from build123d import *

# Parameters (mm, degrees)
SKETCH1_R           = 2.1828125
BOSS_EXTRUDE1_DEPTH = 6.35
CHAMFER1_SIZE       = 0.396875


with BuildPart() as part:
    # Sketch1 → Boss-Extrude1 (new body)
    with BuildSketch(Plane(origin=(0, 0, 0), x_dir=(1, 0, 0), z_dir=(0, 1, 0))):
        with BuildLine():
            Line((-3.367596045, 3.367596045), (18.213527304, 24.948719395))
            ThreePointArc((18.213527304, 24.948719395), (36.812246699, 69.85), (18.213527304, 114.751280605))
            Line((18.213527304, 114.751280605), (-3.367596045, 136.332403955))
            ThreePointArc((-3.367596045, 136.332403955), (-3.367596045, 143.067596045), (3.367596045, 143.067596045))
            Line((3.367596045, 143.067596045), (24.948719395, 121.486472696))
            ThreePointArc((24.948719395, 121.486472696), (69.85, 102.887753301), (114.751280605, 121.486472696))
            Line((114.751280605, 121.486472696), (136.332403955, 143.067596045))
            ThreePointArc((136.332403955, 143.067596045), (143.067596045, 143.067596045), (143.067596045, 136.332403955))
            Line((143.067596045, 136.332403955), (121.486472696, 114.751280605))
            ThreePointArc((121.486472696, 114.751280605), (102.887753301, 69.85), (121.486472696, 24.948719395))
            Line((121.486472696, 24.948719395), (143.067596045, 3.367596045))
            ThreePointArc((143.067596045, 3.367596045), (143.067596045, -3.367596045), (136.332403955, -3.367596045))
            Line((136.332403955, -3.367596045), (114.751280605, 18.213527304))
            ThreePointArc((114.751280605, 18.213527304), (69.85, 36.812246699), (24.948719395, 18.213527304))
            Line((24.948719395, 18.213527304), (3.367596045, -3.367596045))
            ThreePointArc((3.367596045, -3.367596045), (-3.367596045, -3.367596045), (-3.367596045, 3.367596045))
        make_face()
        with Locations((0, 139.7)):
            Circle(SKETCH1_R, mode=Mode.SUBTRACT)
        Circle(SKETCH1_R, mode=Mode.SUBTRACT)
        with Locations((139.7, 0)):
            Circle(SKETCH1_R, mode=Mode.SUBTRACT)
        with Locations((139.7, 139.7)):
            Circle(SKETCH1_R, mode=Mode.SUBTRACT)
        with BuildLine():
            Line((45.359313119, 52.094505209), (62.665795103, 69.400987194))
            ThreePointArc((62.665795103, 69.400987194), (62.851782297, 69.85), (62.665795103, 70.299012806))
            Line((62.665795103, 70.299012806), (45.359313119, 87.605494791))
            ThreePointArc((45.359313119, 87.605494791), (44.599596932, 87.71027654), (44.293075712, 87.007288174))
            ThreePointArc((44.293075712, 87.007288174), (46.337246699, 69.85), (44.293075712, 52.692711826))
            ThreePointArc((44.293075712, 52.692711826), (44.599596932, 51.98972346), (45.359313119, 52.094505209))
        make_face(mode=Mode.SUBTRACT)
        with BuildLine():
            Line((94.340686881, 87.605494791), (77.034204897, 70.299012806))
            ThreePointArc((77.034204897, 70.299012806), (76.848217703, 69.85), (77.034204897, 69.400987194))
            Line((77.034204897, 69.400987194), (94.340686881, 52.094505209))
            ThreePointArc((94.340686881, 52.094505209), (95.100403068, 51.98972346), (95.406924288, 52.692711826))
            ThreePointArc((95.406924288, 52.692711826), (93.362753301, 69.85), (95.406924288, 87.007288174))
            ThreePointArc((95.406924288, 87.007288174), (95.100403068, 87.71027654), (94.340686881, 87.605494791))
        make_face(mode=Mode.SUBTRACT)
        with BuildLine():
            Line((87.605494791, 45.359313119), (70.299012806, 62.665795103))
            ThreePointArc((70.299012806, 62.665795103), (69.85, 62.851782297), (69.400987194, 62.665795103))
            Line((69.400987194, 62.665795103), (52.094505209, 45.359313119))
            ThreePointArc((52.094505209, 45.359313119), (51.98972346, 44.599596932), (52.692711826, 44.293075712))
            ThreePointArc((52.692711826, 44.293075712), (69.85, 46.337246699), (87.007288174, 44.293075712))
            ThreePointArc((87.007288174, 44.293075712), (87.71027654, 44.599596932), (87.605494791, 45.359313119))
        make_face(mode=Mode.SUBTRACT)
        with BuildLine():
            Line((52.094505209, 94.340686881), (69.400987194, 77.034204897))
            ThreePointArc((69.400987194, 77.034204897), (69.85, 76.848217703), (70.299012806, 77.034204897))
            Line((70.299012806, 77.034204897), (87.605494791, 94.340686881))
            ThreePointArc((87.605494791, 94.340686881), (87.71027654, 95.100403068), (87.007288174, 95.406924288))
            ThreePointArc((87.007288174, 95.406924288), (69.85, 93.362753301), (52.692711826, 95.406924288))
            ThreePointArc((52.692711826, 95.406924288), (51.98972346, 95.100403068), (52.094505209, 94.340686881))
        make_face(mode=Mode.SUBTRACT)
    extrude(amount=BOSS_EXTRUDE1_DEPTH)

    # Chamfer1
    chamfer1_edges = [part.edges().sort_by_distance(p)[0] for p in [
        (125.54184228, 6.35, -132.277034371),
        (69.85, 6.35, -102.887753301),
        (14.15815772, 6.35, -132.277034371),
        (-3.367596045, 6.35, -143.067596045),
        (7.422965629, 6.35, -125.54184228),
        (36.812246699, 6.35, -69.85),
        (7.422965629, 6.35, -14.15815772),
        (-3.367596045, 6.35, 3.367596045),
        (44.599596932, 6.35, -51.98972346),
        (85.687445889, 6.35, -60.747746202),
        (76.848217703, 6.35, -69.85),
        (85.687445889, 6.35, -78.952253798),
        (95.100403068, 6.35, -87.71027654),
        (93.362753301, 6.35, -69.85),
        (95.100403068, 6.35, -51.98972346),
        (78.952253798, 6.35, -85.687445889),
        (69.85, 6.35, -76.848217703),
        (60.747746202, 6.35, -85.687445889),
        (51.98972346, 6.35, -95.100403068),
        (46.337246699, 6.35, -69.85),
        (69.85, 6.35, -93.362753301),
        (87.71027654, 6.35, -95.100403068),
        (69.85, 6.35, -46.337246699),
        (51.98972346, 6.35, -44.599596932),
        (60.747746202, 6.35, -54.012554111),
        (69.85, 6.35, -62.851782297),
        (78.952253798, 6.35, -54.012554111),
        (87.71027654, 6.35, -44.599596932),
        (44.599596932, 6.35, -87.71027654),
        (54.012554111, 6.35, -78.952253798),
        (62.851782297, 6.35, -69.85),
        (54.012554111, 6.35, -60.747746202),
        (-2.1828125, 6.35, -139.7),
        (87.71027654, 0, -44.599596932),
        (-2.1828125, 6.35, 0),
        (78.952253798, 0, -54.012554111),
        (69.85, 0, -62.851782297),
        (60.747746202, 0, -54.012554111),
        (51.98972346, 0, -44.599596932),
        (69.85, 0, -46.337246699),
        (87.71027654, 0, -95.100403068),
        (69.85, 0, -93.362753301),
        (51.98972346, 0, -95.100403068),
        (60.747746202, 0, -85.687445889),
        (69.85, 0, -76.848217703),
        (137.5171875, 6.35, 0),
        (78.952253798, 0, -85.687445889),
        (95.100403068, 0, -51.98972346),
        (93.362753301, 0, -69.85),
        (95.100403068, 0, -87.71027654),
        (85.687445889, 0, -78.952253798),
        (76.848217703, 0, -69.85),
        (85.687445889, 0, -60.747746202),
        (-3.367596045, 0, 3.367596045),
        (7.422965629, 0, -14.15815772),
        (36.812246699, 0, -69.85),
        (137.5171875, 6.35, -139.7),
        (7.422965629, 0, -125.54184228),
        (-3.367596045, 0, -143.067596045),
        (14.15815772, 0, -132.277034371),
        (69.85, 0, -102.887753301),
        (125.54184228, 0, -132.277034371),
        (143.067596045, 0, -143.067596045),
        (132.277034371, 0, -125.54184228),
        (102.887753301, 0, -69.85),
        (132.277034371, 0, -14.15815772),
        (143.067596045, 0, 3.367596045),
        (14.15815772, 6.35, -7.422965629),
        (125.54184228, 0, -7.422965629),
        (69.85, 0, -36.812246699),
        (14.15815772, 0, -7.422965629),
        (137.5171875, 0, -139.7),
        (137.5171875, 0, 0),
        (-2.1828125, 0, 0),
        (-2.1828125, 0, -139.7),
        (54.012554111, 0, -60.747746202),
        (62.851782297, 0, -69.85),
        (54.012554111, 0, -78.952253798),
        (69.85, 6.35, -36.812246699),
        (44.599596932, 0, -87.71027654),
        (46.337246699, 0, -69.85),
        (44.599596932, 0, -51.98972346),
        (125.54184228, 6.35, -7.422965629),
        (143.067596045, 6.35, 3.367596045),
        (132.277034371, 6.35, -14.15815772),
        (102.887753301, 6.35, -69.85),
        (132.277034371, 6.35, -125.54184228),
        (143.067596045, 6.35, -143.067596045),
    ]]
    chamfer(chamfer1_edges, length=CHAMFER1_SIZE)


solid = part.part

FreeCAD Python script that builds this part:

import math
import FreeCAD as App
import Part
import Sketcher
Q = App.Units.Quantity


def edges_at(feature, points):
    """Names of the edges that pass closest to the given points."""
    edges = feature.Shape.Edges
    near = lambda p: min(range(len(edges)), key=lambda i: edges[i].distToShape(Part.Vertex(*p))[0])
    return sorted({f"Edge{near(p) + 1}" for p in points})

doc = App.newDocument("Part")
body = doc.addObject("PartDesign::Body", "Body")

# Sketch on XZ plane
sketch1 = body.newObject("Sketcher::SketchObject", "Sketch")
sketch1.AttachmentSupport = (doc.getObject("XZ_Plane"), [""])
sketch1.MapMode = "FlatFace"
sketch1.addGeometry(Part.LineSegment(App.Vector(18.213527, -24.948719, 0), App.Vector(-3.367596, -3.367596, 0)), False)
sketch1.addGeometry(Part.ArcOfCircle(Part.Circle(App.Vector(0, 0, 0), App.Vector(0, 0, 1), 4.7625), math.radians(45), math.radians(225)), False)
sketch1.addGeometry(Part.LineSegment(App.Vector(3.367596, 3.367596, 0), App.Vector(24.948719, -18.213527, 0)), False)
sketch1.addGeometry(Part.ArcOfCircle(Part.Circle(App.Vector(69.85, 26.687753, 0), App.Vector(0, 0, 1), 63.5), math.radians(-135), math.radians(-45)), False)
sketch1.addGeometry(Part.LineSegment(App.Vector(114.751281, -18.213527, 0), App.Vector(136.332404, 3.367596, 0)), False)
sketch1.addGeometry(Part.ArcOfCircle(Part.Circle(App.Vector(139.7, 0, 0), App.Vector(0, 0, 1), 4.7625), math.radians(-45), math.radians(135)), False)
sketch1.addGeometry(Part.LineSegment(App.Vector(143.067596, -3.367596, 0), App.Vector(121.486473, -24.948719, 0)), False)
sketch1.addGeometry(Part.ArcOfCircle(Part.Circle(App.Vector(166.387753, -69.85, 0), App.Vector(0, 0, 1), 63.5), math.radians(135), math.radians(225)), False)
sketch1.addGeometry(Part.LineSegment(App.Vector(121.486473, -114.751281, 0), App.Vector(143.067596, -136.332404, 0)), False)
sketch1.addGeometry(Part.ArcOfCircle(Part.Circle(App.Vector(139.7, -139.7, 0), App.Vector(0, 0, 1), 4.7625), math.radians(-135), math.radians(45)), False)
sketch1.addGeometry(Part.LineSegment(App.Vector(136.332404, -143.067596, 0), App.Vector(114.751281, -121.486473, 0)), False)
sketch1.addGeometry(Part.ArcOfCircle(Part.Circle(App.Vector(69.85, -166.387753, 0), App.Vector(0, 0, 1), 63.5), math.radians(45), math.radians(135)), False)
sketch1.addGeometry(Part.LineSegment(App.Vector(24.948719, -121.486473, 0), App.Vector(3.367596, -143.067596, 0)), False)
sketch1.addGeometry(Part.ArcOfCircle(Part.Circle(App.Vector(0, -139.7, 0), App.Vector(0, 0, 1), 4.7625), math.radians(135), math.radians(315)), False)
sketch1.addGeometry(Part.LineSegment(App.Vector(-3.367596, -136.332404, 0), App.Vector(18.213527, -114.751281, 0)), False)
sketch1.addGeometry(Part.ArcOfCircle(Part.Circle(App.Vector(-26.687753, -69.85, 0), App.Vector(0, 0, 1), 63.5), math.radians(-45), math.radians(45)), False)
sketch1.addGeometry(Part.Circle(App.Vector(139.7, 0, 0), App.Vector(0, 0, 1), 2.182812), False)
sketch1.addGeometry(Part.Circle(App.Vector(0, 0, 0), App.Vector(0, 0, 1), 2.182812), False)
sketch1.addGeometry(Part.ArcOfCircle(Part.Circle(App.Vector(87.156482, -44.9103, 0), App.Vector(0, 0, 1), 0.635), math.radians(-45), math.radians(103.588727)), False)
sketch1.addGeometry(Part.ArcOfCircle(Part.Circle(App.Vector(69.85, 26.687753, 0), App.Vector(0, 0, 1), 73.025), math.radians(-103.588727), math.radians(-76.411273)), False)
sketch1.addGeometry(Part.ArcOfCircle(Part.Circle(App.Vector(52.543518, -44.9103, 0), App.Vector(0, 0, 1), 0.635), math.radians(76.411273), math.radians(225)), False)
sketch1.addGeometry(Part.LineSegment(App.Vector(52.094505, -45.359313, 0), App.Vector(69.400987, -62.665795, 0)), False)
sketch1.addGeometry(Part.ArcOfCircle(Part.Circle(App.Vector(69.85, -62.216782, 0), App.Vector(0, 0, 1), 0.635), math.radians(-135), math.radians(-45)), False)
sketch1.addGeometry(Part.LineSegment(App.Vector(70.299013, -62.665795, 0), App.Vector(87.605495, -45.359313, 0)), False)
sketch1.addGeometry(Part.ArcOfCircle(Part.Circle(App.Vector(94.7897, -87.156482, 0), App.Vector(0, 0, 1), 0.635), math.radians(-135), math.radians(13.588727)), False)
sketch1.addGeometry(Part.ArcOfCircle(Part.Circle(App.Vector(166.387753, -69.85, 0), App.Vector(0, 0, 1), 73.025), math.radians(166.411273), math.radians(193.588727)), False)
sketch1.addGeometry(Part.ArcOfCircle(Part.Circle(App.Vector(94.7897, -52.543518, 0), App.Vector(0, 0, 1), 0.635), math.radians(-13.588727), math.radians(135)), False)
sketch1.addGeometry(Part.LineSegment(App.Vector(94.340687, -52.094505, 0), App.Vector(77.034205, -69.400987, 0)), False)
sketch1.addGeometry(Part.ArcOfCircle(Part.Circle(App.Vector(77.483218, -69.85, 0), App.Vector(0, 0, 1), 0.635), math.radians(135), math.radians(225)), False)
sketch1.addGeometry(Part.LineSegment(App.Vector(77.034205, -70.299013, 0), App.Vector(94.340687, -87.605495, 0)), False)
sketch1.addGeometry(Part.Circle(App.Vector(139.7, -139.7, 0), App.Vector(0, 0, 1), 2.182812), False)
sketch1.addGeometry(Part.ArcOfCircle(Part.Circle(App.Vector(44.9103, -52.543518, 0), App.Vector(0, 0, 1), 0.635), math.radians(45), math.radians(193.588727)), False)
sketch1.addGeometry(Part.ArcOfCircle(Part.Circle(App.Vector(-26.687753, -69.85, 0), App.Vector(0, 0, 1), 73.025), math.radians(-13.588727), math.radians(13.588727)), False)
sketch1.addGeometry(Part.ArcOfCircle(Part.Circle(App.Vector(44.9103, -87.156482, 0), App.Vector(0, 0, 1), 0.635), math.radians(166.411273), math.radians(315)), False)
sketch1.addGeometry(Part.LineSegment(App.Vector(45.359313, -87.605495, 0), App.Vector(62.665795, -70.299013, 0)), False)
sketch1.addGeometry(Part.ArcOfCircle(Part.Circle(App.Vector(62.216782, -69.85, 0), App.Vector(0, 0, 1), 0.635), math.radians(-45), math.radians(45)), False)
sketch1.addGeometry(Part.LineSegment(App.Vector(62.665795, -69.400987, 0), App.Vector(45.359313, -52.094505, 0)), False)
sketch1.addGeometry(Part.ArcOfCircle(Part.Circle(App.Vector(52.543518, -94.7897, 0), App.Vector(0, 0, 1), 0.635), math.radians(135), math.radians(283.588727)), False)
sketch1.addGeometry(Part.ArcOfCircle(Part.Circle(App.Vector(69.85, -166.387753, 0), App.Vector(0, 0, 1), 73.025), math.radians(76.411273), math.radians(103.588727)), False)
sketch1.addGeometry(Part.ArcOfCircle(Part.Circle(App.Vector(87.156482, -94.7897, 0), App.Vector(0, 0, 1), 0.635), math.radians(-103.588727), math.radians(45)), False)
sketch1.addGeometry(Part.LineSegment(App.Vector(87.605495, -94.340687, 0), App.Vector(70.299013, -77.034205, 0)), False)
sketch1.addGeometry(Part.ArcOfCircle(Part.Circle(App.Vector(69.85, -77.483218, 0), App.Vector(0, 0, 1), 0.635), math.radians(45), math.radians(135)), False)
sketch1.addGeometry(Part.LineSegment(App.Vector(69.400987, -77.034205, 0), App.Vector(52.094505, -94.340687, 0)), False)
sketch1.addGeometry(Part.Circle(App.Vector(0, -139.7, 0), App.Vector(0, 0, 1), 2.182812), False)
sketch1.addConstraint(Sketcher.Constraint("Tangent", 0, 2, 1, 2))
sketch1.addConstraint(Sketcher.Constraint("Tangent", 1, 1, 2, 1))
sketch1.addConstraint(Sketcher.Constraint("Tangent", 2, 2, 3, 1))
sketch1.addConstraint(Sketcher.Constraint("Tangent", 3, 2, 4, 1))
sketch1.addConstraint(Sketcher.Constraint("Tangent", 4, 2, 5, 2))
sketch1.addConstraint(Sketcher.Constraint("Tangent", 5, 1, 6, 1))
sketch1.addConstraint(Sketcher.Constraint("Tangent", 6, 2, 7, 1))
sketch1.addConstraint(Sketcher.Constraint("Tangent", 7, 2, 8, 1))
sketch1.addConstraint(Sketcher.Constraint("Tangent", 8, 2, 9, 2))
sketch1.addConstraint(Sketcher.Constraint("Tangent", 9, 1, 10, 1))
sketch1.addConstraint(Sketcher.Constraint("Tangent", 10, 2, 11, 1))
sketch1.addConstraint(Sketcher.Constraint("Tangent", 11, 2, 12, 1))
sketch1.addConstraint(Sketcher.Constraint("Tangent", 12, 2, 13, 2))
sketch1.addConstraint(Sketcher.Constraint("Tangent", 13, 1, 14, 1))
sketch1.addConstraint(Sketcher.Constraint("Tangent", 14, 2, 15, 1))
sketch1.addConstraint(Sketcher.Constraint("Tangent", 15, 2, 0, 1))
sketch1.addConstraint(Sketcher.Constraint("Tangent", 18, 2, 19, 2))
sketch1.addConstraint(Sketcher.Constraint("Tangent", 19, 1, 20, 1))
sketch1.addConstraint(Sketcher.Constraint("Tangent", 20, 2, 21, 1))
sketch1.addConstraint(Sketcher.Constraint("Tangent", 21, 2, 22, 1))
sketch1.addConstraint(Sketcher.Constraint("Tangent", 22, 2, 23, 1))
sketch1.addConstraint(Sketcher.Constraint("Tangent", 23, 2, 18, 1))
sketch1.addConstraint(Sketcher.Constraint("Tangent", 24, 2, 25, 2))
sketch1.addConstraint(Sketcher.Constraint("Tangent", 25, 1, 26, 1))
sketch1.addConstraint(Sketcher.Constraint("Tangent", 26, 2, 27, 1))
sketch1.addConstraint(Sketcher.Constraint("Tangent", 27, 2, 28, 1))
sketch1.addConstraint(Sketcher.Constraint("Tangent", 28, 2, 29, 1))
sketch1.addConstraint(Sketcher.Constraint("Tangent", 29, 2, 24, 1))
sketch1.addConstraint(Sketcher.Constraint("Tangent", 31, 2, 32, 2))
sketch1.addConstraint(Sketcher.Constraint("Tangent", 32, 1, 33, 1))
sketch1.addConstraint(Sketcher.Constraint("Tangent", 33, 2, 34, 1))
sketch1.addConstraint(Sketcher.Constraint("Tangent", 34, 2, 35, 1))
sketch1.addConstraint(Sketcher.Constraint("Tangent", 35, 2, 36, 1))
sketch1.addConstraint(Sketcher.Constraint("Tangent", 36, 2, 31, 1))
sketch1.addConstraint(Sketcher.Constraint("Tangent", 37, 2, 38, 2))
sketch1.addConstraint(Sketcher.Constraint("Tangent", 38, 1, 39, 1))
sketch1.addConstraint(Sketcher.Constraint("Tangent", 39, 2, 40, 1))
sketch1.addConstraint(Sketcher.Constraint("Tangent", 40, 2, 41, 1))
sketch1.addConstraint(Sketcher.Constraint("Tangent", 41, 2, 42, 1))
sketch1.addConstraint(Sketcher.Constraint("Tangent", 42, 2, 37, 1))
sketch1.addConstraint(Sketcher.Constraint("Coincident", 1, 3, -1, 1))
sketch1.addConstraint(Sketcher.Constraint("Coincident", 17, 3, -1, 1))
sketch1.addConstraint(Sketcher.Constraint("Coincident", 16, 3, 5, 3))
sketch1.addConstraint(Sketcher.Constraint("Coincident", 19, 3, 3, 3))
sketch1.addConstraint(Sketcher.Constraint("Coincident", 25, 3, 7, 3))
sketch1.addConstraint(Sketcher.Constraint("Coincident", 30, 3, 9, 3))
sketch1.addConstraint(Sketcher.Constraint("Coincident", 32, 3, 15, 3))
sketch1.addConstraint(Sketcher.Constraint("Coincident", 38, 3, 11, 3))
sketch1.addConstraint(Sketcher.Constraint("Coincident", 43, 3, 13, 3))
sketch1.addConstraint(Sketcher.Constraint("Equal", 1, 5))
sketch1.addConstraint(Sketcher.Constraint("Equal", 3, 7))
sketch1.addConstraint(Sketcher.Constraint("Equal", 5, 9))
sketch1.addConstraint(Sketcher.Constraint("Equal", 7, 11))
sketch1.addConstraint(Sketcher.Constraint("Equal", 9, 13))
sketch1.addConstraint(Sketcher.Constraint("Equal", 11, 15))
sketch1.addConstraint(Sketcher.Constraint("Equal", 16, 17))
sketch1.addConstraint(Sketcher.Constraint("Equal", 18, 20))
sketch1.addConstraint(Sketcher.Constraint("Equal", 20, 22))
sketch1.addConstraint(Sketcher.Constraint("Equal", 22, 24))
sketch1.addConstraint(Sketcher.Constraint("Equal", 19, 25))
sketch1.addConstraint(Sketcher.Constraint("Equal", 24, 26))
sketch1.addConstraint(Sketcher.Constraint("Equal", 26, 28))
sketch1.addConstraint(Sketcher.Constraint("Equal", 17, 30))
sketch1.addConstraint(Sketcher.Constraint("Equal", 28, 31))
sketch1.addConstraint(Sketcher.Constraint("Equal", 25, 32))
sketch1.addConstraint(Sketcher.Constraint("Equal", 31, 33))
sketch1.addConstraint(Sketcher.Constraint("Equal", 33, 35))
sketch1.addConstraint(Sketcher.Constraint("Equal", 35, 37))
sketch1.addConstraint(Sketcher.Constraint("Equal", 32, 38))
sketch1.addConstraint(Sketcher.Constraint("Equal", 37, 39))
sketch1.addConstraint(Sketcher.Constraint("Equal", 39, 41))
sketch1.addConstraint(Sketcher.Constraint("Equal", 30, 43))
sketch1.addConstraint(Sketcher.Constraint("PointOnObject", 5, 3, -1))
sketch1.addConstraint(Sketcher.Constraint("PointOnObject", 13, 3, -2))
sketch1.addConstraint(Sketcher.Constraint("Parallel", 0, 2))
sketch1.addConstraint(Sketcher.Constraint("Perpendicular", 2, 4))
sketch1.addConstraint(Sketcher.Constraint("Parallel", 4, 6))
sketch1.addConstraint(Sketcher.Constraint("Perpendicular", 6, 8))
sketch1.addConstraint(Sketcher.Constraint("Parallel", 8, 10))
sketch1.addConstraint(Sketcher.Constraint("Perpendicular", 10, 12))
sketch1.addConstraint(Sketcher.Constraint("Parallel", 12, 14))
sketch1.addConstraint(Sketcher.Constraint("Perpendicular", 14, 21))
sketch1.addConstraint(Sketcher.Constraint("Perpendicular", 21, 23))
sketch1.addConstraint(Sketcher.Constraint("Parallel", 23, 27))
sketch1.addConstraint(Sketcher.Constraint("Perpendicular", 27, 29))
sketch1.addConstraint(Sketcher.Constraint("Perpendicular", 29, 34))
sketch1.addConstraint(Sketcher.Constraint("Perpendicular", 34, 36))
sketch1.addConstraint(Sketcher.Constraint("Parallel", 36, 40))
sketch1.addConstraint(Sketcher.Constraint("Perpendicular", 40, 42))
sketch1.addConstraint(Sketcher.Constraint("Horizontal", 9, 3, 13, 3))
sketch1.addConstraint(Sketcher.Constraint("Horizontal", 7, 3, 15, 3))
sketch1.addConstraint(Sketcher.Constraint("Horizontal", 18, 3, 20, 3))
sketch1.addConstraint(Sketcher.Constraint("Horizontal", 25, 3, 28, 3))
sketch1.addConstraint(Sketcher.Constraint("Horizontal", 26, 3, 31, 3))
sketch1.addConstraint(Sketcher.Constraint("Horizontal", 24, 3, 33, 3))
sketch1.addConstraint(Sketcher.Constraint("Horizontal", 32, 3, 35, 3))
sketch1.addConstraint(Sketcher.Constraint("Horizontal", 37, 3, 39, 3))
sketch1.addConstraint(Sketcher.Constraint("Vertical", 20, 3, 37, 3))
sketch1.addConstraint(Sketcher.Constraint("Equal", 0, 2))
sketch1.addConstraint(Sketcher.Constraint("Equal", 23, 27))
sketch1.addConstraint(Sketcher.Constraint("Radius", 3, Q("2.5 in")))
sketch1.addConstraint(Sketcher.Constraint("Diameter", 16, Q("0.171875 in")))
sketch1.addConstraint(Sketcher.Constraint("Radius", 1, Q("0.1875 in")))
sketch1.addConstraint(Sketcher.Constraint("Radius", 18, Q("0.025 in")))
sketch1.addConstraint(Sketcher.Constraint("Radius", 19, Q("2.875 in")))
sketch1.addConstraint(Sketcher.Constraint("DistanceX", -1, 1, 5, 3, Q("5.5 in")))
sketch1.addConstraint(Sketcher.Constraint("DistanceY", 18, 3, -1, 1, Q("44.9103 mm")))
pad1 = body.newObject("PartDesign::Pad", "Pad")
pad1.Profile = sketch1
pad1.Length = Q("0.25 in")
pad1.Reversed = True
doc.recompute()

chamfer = body.newObject("PartDesign::Chamfer", "Chamfer")
chamfer.Base = (pad1, edges_at(pad1, [
    (125.542, 6.35, -132.277),
    (69.85, 6.35, -102.888),
    (14.158, 6.35, -132.277),
    (-3.368, 6.35, -143.068),
    (7.423, 6.35, -125.542),
    (36.812, 6.35, -69.85),
    (7.423, 6.35, -14.158),
    (-3.368, 6.35, 3.368),
    (44.6, 6.35, -51.99),
    (85.687, 6.35, -60.748),
    (76.848, 6.35, -69.85),
    (85.687, 6.35, -78.952),
    (95.1, 6.35, -87.71),
    (93.363, 6.35, -69.85),
    (95.1, 6.35, -51.99),
    (78.952, 6.35, -85.687),
    (69.85, 6.35, -76.848),
    (60.748, 6.35, -85.687),
    (51.99, 6.35, -95.1),
    (46.337, 6.35, -69.85),
    (69.85, 6.35, -93.363),
    (87.71, 6.35, -95.1),
    (69.85, 6.35, -46.337),
    (51.99, 6.35, -44.6),
    (60.748, 6.35, -54.013),
    (69.85, 6.35, -62.852),
    (78.952, 6.35, -54.013),
    (87.71, 6.35, -44.6),
    (44.6, 6.35, -87.71),
    (54.013, 6.35, -78.952),
    (62.852, 6.35, -69.85),
    (54.013, 6.35, -60.748),
    (-2.183, 6.35, -139.7),
    (87.71, 0, -44.6),
    (-2.183, 6.35, 0),
    (78.952, 0, -54.013),
    (69.85, 0, -62.852),
    (60.748, 0, -54.013),
    (51.99, 0, -44.6),
    (69.85, 0, -46.337),
    (87.71, 0, -95.1),
    (69.85, 0, -93.363),
    (51.99, 0, -95.1),
    (60.748, 0, -85.687),
    (69.85, 0, -76.848),
    (137.517, 6.35, 0),
    (78.952, 0, -85.687),
    (95.1, 0, -51.99),
    (93.363, 0, -69.85),
    (95.1, 0, -87.71),
    (85.687, 0, -78.952),
    (76.848, 0, -69.85),
    (85.687, 0, -60.748),
    (-3.368, 0, 3.368),
    (7.423, 0, -14.158),
    (36.812, 0, -69.85),
    (137.517, 6.35, -139.7),
    (7.423, 0, -125.542),
    (-3.368, 0, -143.068),
    (14.158, 0, -132.277),
    (69.85, 0, -102.888),
    (125.542, 0, -132.277),
    (143.068, 0, -143.068),
    (132.277, 0, -125.542),
    (102.888, 0, -69.85),
    (132.277, 0, -14.158),
    (143.068, 0, 3.368),
    (14.158, 6.35, -7.423),
    (125.542, 0, -7.423),
    (69.85, 0, -36.812),
    (14.158, 0, -7.423),
    (137.517, 0, -139.7),
    (137.517, 0, 0),
    (-2.183, 0, 0),
    (-2.183, 0, -139.7),
    (54.013, 0, -60.748),
    (62.852, 0, -69.85),
    (54.013, 0, -78.952),
    (69.85, 6.35, -36.812),
    (44.6, 0, -87.71),
    (46.337, 0, -69.85),
    (44.6, 0, -51.99),
    (125.542, 6.35, -7.423),
    (143.068, 6.35, 3.368),
    (132.277, 6.35, -14.158),
    (102.888, 6.35, -69.85),
    (132.277, 6.35, -125.542),
    (143.068, 6.35, -143.068),
]))
chamfer.Size = Q("0.015625 in")

doc.recompute()
